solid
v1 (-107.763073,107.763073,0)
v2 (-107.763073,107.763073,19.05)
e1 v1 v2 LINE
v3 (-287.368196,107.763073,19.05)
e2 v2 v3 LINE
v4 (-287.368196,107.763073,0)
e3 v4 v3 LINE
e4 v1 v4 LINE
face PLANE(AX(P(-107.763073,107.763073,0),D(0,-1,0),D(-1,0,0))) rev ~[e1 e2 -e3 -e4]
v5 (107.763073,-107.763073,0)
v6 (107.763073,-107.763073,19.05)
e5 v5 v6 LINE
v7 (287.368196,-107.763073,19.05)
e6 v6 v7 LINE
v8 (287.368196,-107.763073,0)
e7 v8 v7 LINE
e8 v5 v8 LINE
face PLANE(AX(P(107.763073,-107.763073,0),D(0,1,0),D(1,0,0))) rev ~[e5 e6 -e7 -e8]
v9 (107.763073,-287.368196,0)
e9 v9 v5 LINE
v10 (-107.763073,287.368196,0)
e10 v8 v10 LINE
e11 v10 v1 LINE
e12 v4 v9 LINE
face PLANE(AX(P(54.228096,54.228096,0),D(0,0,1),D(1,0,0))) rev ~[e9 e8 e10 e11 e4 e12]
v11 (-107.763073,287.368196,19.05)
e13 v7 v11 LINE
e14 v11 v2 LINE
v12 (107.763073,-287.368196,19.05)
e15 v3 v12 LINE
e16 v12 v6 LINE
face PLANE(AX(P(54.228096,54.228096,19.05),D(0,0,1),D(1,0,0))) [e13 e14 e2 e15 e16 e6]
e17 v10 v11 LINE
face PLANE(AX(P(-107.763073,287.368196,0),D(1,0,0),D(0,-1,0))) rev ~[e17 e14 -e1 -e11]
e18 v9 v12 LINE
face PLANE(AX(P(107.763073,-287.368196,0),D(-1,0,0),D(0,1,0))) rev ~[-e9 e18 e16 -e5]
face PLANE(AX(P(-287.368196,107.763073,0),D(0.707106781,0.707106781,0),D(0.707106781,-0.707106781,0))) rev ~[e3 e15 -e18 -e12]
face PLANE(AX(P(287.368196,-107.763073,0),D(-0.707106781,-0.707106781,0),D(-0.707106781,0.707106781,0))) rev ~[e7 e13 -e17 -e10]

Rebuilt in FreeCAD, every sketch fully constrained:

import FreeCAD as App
import Part
import Sketcher
Q = App.Units.Quantity


def add_polygon(sketch, points):
    """Adds a closed chain of lines whose ends are joined by coincident constraints."""
    first, n = sketch.GeometryCount, len(points)
    for a, b in zip(points, points[1:] + points[:1]):
        sketch.addGeometry(Part.LineSegment(App.Vector(*a, 0), App.Vector(*b, 0)), False)
    for i in range(n):
        sketch.addConstraint(Sketcher.Constraint("Coincident", first + i, 2, first + (i + 1) % n, 1))

doc = App.newDocument("Part")
body = doc.addObject("PartDesign::Body", "Body")

# Sketch on XY plane
sketch1 = body.newObject("Sketcher::SketchObject", "Sketch")
sketch1.AttachmentSupport = (doc.getObject("XY_Plane"), [""])
sketch1.MapMode = "FlatFace"
add_polygon(sketch1, [(-107.763073, 107.763073), (-287.368196, 107.763073), (107.763073, -287.368196), (107.763073, -107.763073)])  # lines 0-3
sketch1.addConstraint(Sketcher.Constraint("Horizontal", 0))
sketch1.addConstraint(Sketcher.Constraint("Vertical", 2))
sketch1.addConstraint(Sketcher.Constraint("Symmetric", 2, 2, 3, 2, -1, 1))
sketch1.addConstraint(Sketcher.Constraint("Parallel", 1, 3))
sketch1.addConstraint(Sketcher.Constraint("Equal", 0, 2))
sketch1.addConstraint(Sketcher.Constraint("Distance", 1, Q("22 in")))
sketch1.addConstraint(Sketcher.Constraint("Distance", 3, Q("11.9999999 in")))
pad1 = body.newObject("PartDesign::Pad", "Pad")
pad1.Profile = sketch1
pad1.Length = Q("0.75 in")

# Sketch on XY plane
sketch2 = body.newObject("Sketcher::SketchObject", "Sketch001")
sketch2.AttachmentSupport = (doc.getObject("XY_Plane"), [""])
sketch2.MapMode = "FlatFace"
add_polygon(sketch2, [(-107.763073, 287.368196), (-107.763073, 107.763073), (107.763073, -107.763073), (287.368196, -107.763073)])  # lines 0-3
sketch2.addConstraint(Sketcher.Constraint("Vertical", 0))
sketch2.addConstraint(Sketcher.Constraint("Horizontal", 2))
sketch2.addConstraint(Sketcher.Constraint("Symmetric", 0, 2, 1, 2, -1, 1))
sketch2.addConstraint(Sketcher.Constraint("Parallel", 1, 3))
sketch2.addConstraint(Sketcher.Constraint("Equal", 2, 0))
sketch2.addConstraint(Sketcher.Constraint("Distance", 1, Q("11.9999999 in")))
sketch2.addConstraint(Sketcher.Constraint("Distance", 3, Q("22 in")))
pad2 = body.newObject("PartDesign::Pad", "Pad001")
pad2.Profile = sketch2
pad2.Length = Q("0.75 in")

doc.recompute()
